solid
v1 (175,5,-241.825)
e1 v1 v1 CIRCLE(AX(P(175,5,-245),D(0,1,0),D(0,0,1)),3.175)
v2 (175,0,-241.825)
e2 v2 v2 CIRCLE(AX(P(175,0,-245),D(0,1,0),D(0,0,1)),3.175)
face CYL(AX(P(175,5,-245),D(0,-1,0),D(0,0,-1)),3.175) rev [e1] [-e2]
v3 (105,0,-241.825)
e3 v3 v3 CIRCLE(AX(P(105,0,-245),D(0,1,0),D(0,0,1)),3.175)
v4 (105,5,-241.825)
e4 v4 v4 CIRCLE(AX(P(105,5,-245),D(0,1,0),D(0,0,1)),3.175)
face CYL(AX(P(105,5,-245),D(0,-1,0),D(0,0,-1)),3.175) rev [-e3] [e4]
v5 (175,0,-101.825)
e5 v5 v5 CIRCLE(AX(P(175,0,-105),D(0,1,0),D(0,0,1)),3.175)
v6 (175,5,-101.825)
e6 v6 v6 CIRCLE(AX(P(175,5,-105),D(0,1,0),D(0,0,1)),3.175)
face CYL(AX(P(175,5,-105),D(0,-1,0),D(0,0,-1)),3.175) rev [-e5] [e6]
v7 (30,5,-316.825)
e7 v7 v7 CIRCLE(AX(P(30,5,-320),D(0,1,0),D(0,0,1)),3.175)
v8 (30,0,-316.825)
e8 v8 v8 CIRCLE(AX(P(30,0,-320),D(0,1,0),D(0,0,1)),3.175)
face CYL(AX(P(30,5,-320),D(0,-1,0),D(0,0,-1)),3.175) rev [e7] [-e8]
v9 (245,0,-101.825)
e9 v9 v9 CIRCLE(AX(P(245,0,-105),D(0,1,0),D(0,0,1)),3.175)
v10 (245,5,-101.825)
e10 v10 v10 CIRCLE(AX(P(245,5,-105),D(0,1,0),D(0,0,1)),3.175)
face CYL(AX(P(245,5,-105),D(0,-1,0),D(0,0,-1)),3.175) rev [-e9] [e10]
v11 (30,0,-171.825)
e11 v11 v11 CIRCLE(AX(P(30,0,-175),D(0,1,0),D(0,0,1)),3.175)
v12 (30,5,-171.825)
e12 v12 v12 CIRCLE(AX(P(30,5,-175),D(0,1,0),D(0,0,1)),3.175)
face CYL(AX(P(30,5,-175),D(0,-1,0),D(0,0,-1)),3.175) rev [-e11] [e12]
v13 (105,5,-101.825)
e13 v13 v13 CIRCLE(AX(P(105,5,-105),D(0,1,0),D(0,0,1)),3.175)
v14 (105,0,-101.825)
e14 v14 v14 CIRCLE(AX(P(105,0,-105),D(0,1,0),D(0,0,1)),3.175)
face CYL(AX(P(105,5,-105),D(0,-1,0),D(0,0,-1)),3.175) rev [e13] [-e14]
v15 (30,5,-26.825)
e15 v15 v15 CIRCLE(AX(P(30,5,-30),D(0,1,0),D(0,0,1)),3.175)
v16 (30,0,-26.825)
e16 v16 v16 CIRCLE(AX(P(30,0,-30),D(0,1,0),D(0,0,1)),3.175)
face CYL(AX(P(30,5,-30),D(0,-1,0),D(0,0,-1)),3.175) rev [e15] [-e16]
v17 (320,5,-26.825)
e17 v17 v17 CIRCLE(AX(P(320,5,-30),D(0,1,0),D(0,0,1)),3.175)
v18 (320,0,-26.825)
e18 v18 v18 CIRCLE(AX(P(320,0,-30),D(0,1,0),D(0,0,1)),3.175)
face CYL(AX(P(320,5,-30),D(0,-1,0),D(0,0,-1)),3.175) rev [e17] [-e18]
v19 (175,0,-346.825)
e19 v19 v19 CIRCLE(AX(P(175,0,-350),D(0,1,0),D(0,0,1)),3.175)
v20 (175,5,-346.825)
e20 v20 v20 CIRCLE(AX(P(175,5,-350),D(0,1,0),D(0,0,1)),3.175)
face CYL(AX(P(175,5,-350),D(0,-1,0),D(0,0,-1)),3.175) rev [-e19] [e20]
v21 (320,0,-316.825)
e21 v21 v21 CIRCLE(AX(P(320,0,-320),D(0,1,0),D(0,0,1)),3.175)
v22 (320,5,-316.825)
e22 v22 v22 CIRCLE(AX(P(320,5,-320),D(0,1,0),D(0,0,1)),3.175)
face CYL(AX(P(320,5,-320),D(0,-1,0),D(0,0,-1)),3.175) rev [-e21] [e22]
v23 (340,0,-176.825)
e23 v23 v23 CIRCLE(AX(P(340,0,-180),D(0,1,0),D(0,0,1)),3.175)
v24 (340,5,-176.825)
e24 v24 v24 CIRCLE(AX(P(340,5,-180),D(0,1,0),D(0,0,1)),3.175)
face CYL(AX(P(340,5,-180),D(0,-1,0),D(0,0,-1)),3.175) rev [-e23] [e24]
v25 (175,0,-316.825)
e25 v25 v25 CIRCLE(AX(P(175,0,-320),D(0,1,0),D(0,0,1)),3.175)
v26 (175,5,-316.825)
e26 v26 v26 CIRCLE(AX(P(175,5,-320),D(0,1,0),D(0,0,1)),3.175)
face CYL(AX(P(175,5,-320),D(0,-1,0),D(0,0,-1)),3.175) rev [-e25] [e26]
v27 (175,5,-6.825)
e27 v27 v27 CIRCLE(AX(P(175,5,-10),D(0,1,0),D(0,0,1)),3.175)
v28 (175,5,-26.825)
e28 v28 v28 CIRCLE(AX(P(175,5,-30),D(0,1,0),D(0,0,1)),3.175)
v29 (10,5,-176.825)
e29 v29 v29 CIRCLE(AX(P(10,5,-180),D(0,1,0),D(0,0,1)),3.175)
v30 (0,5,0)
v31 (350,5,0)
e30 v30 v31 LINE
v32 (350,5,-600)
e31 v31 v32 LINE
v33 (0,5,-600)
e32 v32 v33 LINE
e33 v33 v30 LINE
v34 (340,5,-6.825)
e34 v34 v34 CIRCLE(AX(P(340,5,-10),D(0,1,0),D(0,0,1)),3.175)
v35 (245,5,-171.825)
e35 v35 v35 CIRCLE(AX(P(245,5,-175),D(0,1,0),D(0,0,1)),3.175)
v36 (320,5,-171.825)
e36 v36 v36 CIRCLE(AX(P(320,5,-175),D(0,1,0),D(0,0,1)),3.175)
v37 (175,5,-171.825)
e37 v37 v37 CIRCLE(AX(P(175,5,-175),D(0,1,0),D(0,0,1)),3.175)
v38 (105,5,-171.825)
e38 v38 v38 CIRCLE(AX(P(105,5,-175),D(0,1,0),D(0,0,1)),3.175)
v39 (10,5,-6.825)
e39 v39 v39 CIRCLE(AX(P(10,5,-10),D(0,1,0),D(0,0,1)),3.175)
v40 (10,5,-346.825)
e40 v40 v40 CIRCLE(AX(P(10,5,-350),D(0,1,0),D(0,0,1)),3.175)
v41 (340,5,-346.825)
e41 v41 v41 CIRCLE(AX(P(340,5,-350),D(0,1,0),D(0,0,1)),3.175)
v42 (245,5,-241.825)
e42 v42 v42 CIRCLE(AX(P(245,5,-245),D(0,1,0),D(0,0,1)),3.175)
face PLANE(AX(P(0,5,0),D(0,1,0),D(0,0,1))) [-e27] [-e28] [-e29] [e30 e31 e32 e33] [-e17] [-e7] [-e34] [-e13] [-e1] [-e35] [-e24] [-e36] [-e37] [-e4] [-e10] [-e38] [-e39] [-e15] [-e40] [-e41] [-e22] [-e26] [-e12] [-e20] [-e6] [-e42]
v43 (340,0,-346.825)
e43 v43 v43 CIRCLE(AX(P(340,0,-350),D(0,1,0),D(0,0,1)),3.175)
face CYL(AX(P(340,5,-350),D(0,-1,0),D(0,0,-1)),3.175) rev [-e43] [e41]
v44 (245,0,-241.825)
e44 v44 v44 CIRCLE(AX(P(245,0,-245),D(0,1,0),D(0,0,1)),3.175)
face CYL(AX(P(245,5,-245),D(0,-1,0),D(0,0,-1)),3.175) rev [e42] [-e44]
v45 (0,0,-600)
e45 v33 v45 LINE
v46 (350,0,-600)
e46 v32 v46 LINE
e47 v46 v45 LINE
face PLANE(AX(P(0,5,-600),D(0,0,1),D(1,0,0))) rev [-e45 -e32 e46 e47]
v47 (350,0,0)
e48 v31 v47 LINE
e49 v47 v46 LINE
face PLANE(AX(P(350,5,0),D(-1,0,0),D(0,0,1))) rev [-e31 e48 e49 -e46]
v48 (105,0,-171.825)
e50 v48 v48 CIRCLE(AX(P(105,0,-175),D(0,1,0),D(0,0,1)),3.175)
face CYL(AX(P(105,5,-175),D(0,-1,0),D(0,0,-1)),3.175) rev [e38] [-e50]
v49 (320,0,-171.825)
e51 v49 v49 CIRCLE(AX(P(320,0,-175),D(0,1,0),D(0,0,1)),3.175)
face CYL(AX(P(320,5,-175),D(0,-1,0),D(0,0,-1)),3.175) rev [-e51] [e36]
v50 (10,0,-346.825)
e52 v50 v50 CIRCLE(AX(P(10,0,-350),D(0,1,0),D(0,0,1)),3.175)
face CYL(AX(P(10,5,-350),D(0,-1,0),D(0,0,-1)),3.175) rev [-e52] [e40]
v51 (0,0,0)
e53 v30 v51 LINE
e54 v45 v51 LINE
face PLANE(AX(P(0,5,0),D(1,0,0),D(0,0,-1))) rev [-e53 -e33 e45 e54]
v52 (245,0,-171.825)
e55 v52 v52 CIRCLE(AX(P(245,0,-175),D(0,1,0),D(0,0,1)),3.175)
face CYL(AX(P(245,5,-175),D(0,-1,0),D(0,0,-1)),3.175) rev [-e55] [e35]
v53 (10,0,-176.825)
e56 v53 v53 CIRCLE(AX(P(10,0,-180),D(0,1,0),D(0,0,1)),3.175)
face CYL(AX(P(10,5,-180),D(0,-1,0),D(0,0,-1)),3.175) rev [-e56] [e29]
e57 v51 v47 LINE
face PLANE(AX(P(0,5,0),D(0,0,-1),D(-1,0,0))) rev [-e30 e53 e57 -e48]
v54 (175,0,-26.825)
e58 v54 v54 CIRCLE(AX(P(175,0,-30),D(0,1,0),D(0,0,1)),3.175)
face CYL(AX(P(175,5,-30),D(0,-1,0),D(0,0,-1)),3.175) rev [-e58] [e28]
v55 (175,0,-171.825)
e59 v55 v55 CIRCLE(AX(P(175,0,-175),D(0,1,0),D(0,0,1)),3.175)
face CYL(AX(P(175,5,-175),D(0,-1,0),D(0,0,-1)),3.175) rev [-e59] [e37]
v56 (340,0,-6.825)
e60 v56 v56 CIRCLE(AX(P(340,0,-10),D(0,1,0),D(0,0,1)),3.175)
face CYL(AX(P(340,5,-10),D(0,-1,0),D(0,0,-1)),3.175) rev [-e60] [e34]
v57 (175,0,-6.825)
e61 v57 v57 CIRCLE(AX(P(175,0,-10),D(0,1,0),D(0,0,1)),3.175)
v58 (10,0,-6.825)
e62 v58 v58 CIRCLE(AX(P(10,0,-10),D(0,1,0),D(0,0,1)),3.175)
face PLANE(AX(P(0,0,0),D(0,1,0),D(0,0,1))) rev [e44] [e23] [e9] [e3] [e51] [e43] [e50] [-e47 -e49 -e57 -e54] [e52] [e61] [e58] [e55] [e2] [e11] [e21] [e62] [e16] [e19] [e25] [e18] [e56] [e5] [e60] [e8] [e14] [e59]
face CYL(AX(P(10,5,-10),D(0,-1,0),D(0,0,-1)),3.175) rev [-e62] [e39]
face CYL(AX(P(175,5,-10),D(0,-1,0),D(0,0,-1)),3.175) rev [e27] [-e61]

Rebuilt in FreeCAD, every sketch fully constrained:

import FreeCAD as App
import Part
import Sketcher
from FreeCAD import Vector
Q = App.Units.Quantity

doc = App.newDocument("Part")
params = doc.addObject("Spreadsheet::Sheet", "Params")
for row, (alias, value) in enumerate([
    ("sketch1_diameter", "6.35 mm"),
    ("sketch1_width", "350 mm"),
    ("sketch1_height", "600 mm"),
    ("pad1_length", "5 mm"),
], start=1):
    params.set(f"A{row}", alias)
    params.set(f"B{row}", "=" + value)
    params.setAlias(f"B{row}", alias)

body = doc.addObject("PartDesign::Body", "Body")

# Sketch on XZ plane
sketch1 = body.newObject("Sketcher::SketchObject", "Sketch")
sketch1.AttachmentSupport = (doc.getObject("XZ_Plane"), [""])
sketch1.MapMode = "FlatFace"
sketch1.addGeometry([
    Part.LineSegment(Vector(0, -600, 0), Vector(0, 0, 0)),  # 0
    Part.LineSegment(Vector(0, 0, 0), Vector(350, 0, 0)),  # 1
    Part.LineSegment(Vector(350, 0, 0), Vector(350, -600, 0)),  # 2
    Part.LineSegment(Vector(350, -600, 0), Vector(0, -600, 0)),  # 3
    Part.Circle(Vector(10, -10, 0), Vector(0, 0, 1), 3.175),  # 4
    Part.Circle(Vector(30, -30, 0), Vector(0, 0, 1), 3.175),  # 5
    Part.Circle(Vector(30, -175, 0), Vector(0, 0, 1), 3.175),  # 6
    Part.Circle(Vector(105, -105, 0), Vector(0, 0, 1), 3.175),  # 7
    Part.Circle(Vector(105, -175, 0), Vector(0, 0, 1), 3.175),  # 8
    Part.Circle(Vector(175, -10, 0), Vector(0, 0, 1), 3.175),  # 9
    Part.Circle(Vector(175, -30, 0), Vector(0, 0, 1), 3.175),  # 10
    Part.Circle(Vector(340, -10, 0), Vector(0, 0, 1), 3.175),  # 11
    Part.Circle(Vector(320, -30, 0), Vector(0, 0, 1), 3.175),  # 12
    Part.Circle(Vector(175, -105, 0), Vector(0, 0, 1), 3.175),  # 13
    Part.Circle(Vector(245, -105, 0), Vector(0, 0, 1), 3.175),  # 14
    Part.Circle(Vector(175, -175, 0), Vector(0, 0, 1), 3.175),  # 15
    Part.Circle(Vector(245, -175, 0), Vector(0, 0, 1), 3.175),  # 16
    Part.Circle(Vector(320, -175, 0), Vector(0, 0, 1), 3.175),  # 17
    Part.Circle(Vector(10, -180, 0), Vector(0, 0, 1), 3.175),  # 18
    Part.Circle(Vector(105, -245, 0), Vector(0, 0, 1), 3.175),  # 19
    Part.Circle(Vector(30, -320, 0), Vector(0, 0, 1), 3.175),  # 20
    Part.Circle(Vector(10, -350, 0), Vector(0, 0, 1), 3.175),  # 21
    Part.Circle(Vector(175, -245, 0), Vector(0, 0, 1), 3.175),  # 22
    Part.Circle(Vector(245, -245, 0), Vector(0, 0, 1), 3.175),  # 23
    Part.Circle(Vector(340, -180, 0), Vector(0, 0, 1), 3.175),  # 24
    Part.Circle(Vector(175, -320, 0), Vector(0, 0, 1), 3.175),  # 25
    Part.Circle(Vector(175, -350, 0), Vector(0, 0, 1), 3.175),  # 26
    Part.Circle(Vector(320, -320, 0), Vector(0, 0, 1), 3.175),  # 27
    Part.Circle(Vector(340, -350, 0), Vector(0, 0, 1), 3.175),  # 28
], False)
sketch1.addConstraint([
    Sketcher.Constraint("Coincident", 0, 2, 1, 1),
    Sketcher.Constraint("Coincident", 1, 2, 2, 1),
    Sketcher.Constraint("Coincident", 2, 2, 3, 1),
    Sketcher.Constraint("Coincident", 3, 2, 0, 1),
    Sketcher.Constraint("Vertical", 0),
    Sketcher.Constraint("Horizontal", 1),
    Sketcher.Constraint("Vertical", 2),
    Sketcher.Constraint("Horizontal", 3),
    Sketcher.Constraint("Coincident", 0, 2, -1, 1),
    Sketcher.Constraint("Equal", 4, 5),
    Sketcher.Constraint("Equal", 5, 6),
    Sketcher.Constraint("Equal", 6, 7),
    Sketcher.Constraint("Equal", 7, 8),
    Sketcher.Constraint("Equal", 8, 9),
    Sketcher.Constraint("Equal", 9, 10),
    Sketcher.Constraint("Equal", 10, 11),
    Sketcher.Constraint("Equal", 11, 12),
    Sketcher.Constraint("Equal", 12, 13),
    Sketcher.Constraint("Equal", 13, 14),
    Sketcher.Constraint("Equal", 14, 15),
    Sketcher.Constraint("Equal", 15, 16),
    Sketcher.Constraint("Equal", 16, 17),
    Sketcher.Constraint("Equal", 17, 18),
    Sketcher.Constraint("Equal", 18, 19),
    Sketcher.Constraint("Equal", 19, 20),
    Sketcher.Constraint("Equal", 20, 21),
    Sketcher.Constraint("Equal", 21, 22),
    Sketcher.Constraint("Equal", 22, 23),
    Sketcher.Constraint("Equal", 23, 24),
    Sketcher.Constraint("Equal", 24, 25),
    Sketcher.Constraint("Equal", 25, 26),
    Sketcher.Constraint("Equal", 26, 27),
    Sketcher.Constraint("Equal", 27, 28),
    Sketcher.Constraint("Horizontal", 6, 3, 8, 3),
    Sketcher.Constraint("Horizontal", 4, 3, 9, 3),
    Sketcher.Constraint("Horizontal", 5, 3, 10, 3),
    Sketcher.Constraint("Horizontal", 9, 3, 11, 3),
    Sketcher.Constraint("Horizontal", 10, 3, 12, 3),
    Sketcher.Constraint("Horizontal", 7, 3, 13, 3),
    Sketcher.Constraint("Horizontal", 13, 3, 14, 3),
    Sketcher.Constraint("Horizontal", 8, 3, 15, 3),
    Sketcher.Constraint("Horizontal", 15, 3, 16, 3),
    Sketcher.Constraint("Horizontal", 16, 3, 17, 3),
    Sketcher.Constraint("Horizontal", 19, 3, 22, 3),
    Sketcher.Constraint("Horizontal", 22, 3, 23, 3),
    Sketcher.Constraint("Horizontal", 18, 3, 24, 3),
    Sketcher.Constraint("Horizontal", 20, 3, 25, 3),
    Sketcher.Constraint("Horizontal", 21, 3, 26, 3),
    Sketcher.Constraint("Horizontal", 25, 3, 27, 3),
    Sketcher.Constraint("Horizontal", 26, 3, 28, 3),
    Sketcher.Constraint("Vertical", 5, 3, 6, 3),
    Sketcher.Constraint("Vertical", 7, 3, 8, 3),
    Sketcher.Constraint("Vertical", 9, 3, 10, 3),
    Sketcher.Constraint("Vertical", 10, 3, 13, 3),
    Sketcher.Constraint("Vertical", 13, 3, 15, 3),
    Sketcher.Constraint("Vertical", 14, 3, 16, 3),
    Sketcher.Constraint("Vertical", 12, 3, 17, 3),
    Sketcher.Constraint("Vertical", 4, 3, 18, 3),
    Sketcher.Constraint("Vertical", 8, 3, 19, 3),
    Sketcher.Constraint("Vertical", 6, 3, 20, 3),
    Sketcher.Constraint("Vertical", 18, 3, 21, 3),
    Sketcher.Constraint("Vertical", 15, 3, 22, 3),
    Sketcher.Constraint("Vertical", 16, 3, 23, 3),
    Sketcher.Constraint("Vertical", 11, 3, 24, 3),
    Sketcher.Constraint("Vertical", 22, 3, 25, 3),
    Sketcher.Constraint("Vertical", 25, 3, 26, 3),
    Sketcher.Constraint("Vertical", 17, 3, 27, 3),
    Sketcher.Constraint("Vertical", 24, 3, 28, 3),
    Sketcher.Constraint("Diameter", 4, Q("6.35 mm")),
    Sketcher.Constraint("DistanceX", 1, 1, 1, 2, Q("350 mm")),
    Sketcher.Constraint("DistanceY", 0, 1, 0, 2, Q("600 mm")),
    Sketcher.Constraint("DistanceX", -1, 1, 4, 3, Q("10 mm")),
    Sketcher.Constraint("DistanceY", 4, 3, -1, 1, Q("10 mm")),
    Sketcher.Constraint("DistanceX", -1, 1, 5, 3, Q("30 mm")),
    Sketcher.Constraint("DistanceY", 5, 3, -1, 1, Q("30 mm")),
    Sketcher.Constraint("DistanceY", 6, 3, -1, 1, Q("175 mm")),
    Sketcher.Constraint("DistanceX", -1, 1, 7, 3, Q("105 mm")),
    Sketcher.Constraint("DistanceY", 7, 3, -1, 1, Q("105 mm")),
    Sketcher.Constraint("DistanceX", -1, 1, 9, 3, Q("175 mm")),
    Sketcher.Constraint("DistanceX", -1, 1, 11, 3, Q("340 mm")),
    Sketcher.Constraint("DistanceX", -1, 1, 12, 3, Q("320 mm")),
    Sketcher.Constraint("DistanceX", -1, 1, 14, 3, Q("245 mm")),
    Sketcher.Constraint("DistanceY", 18, 3, -1, 1, Q("180 mm")),
    Sketcher.Constraint("DistanceY", 19, 3, -1, 1, Q("245 mm")),
    Sketcher.Constraint("DistanceY", 20, 3, -1, 1, Q("320 mm")),
    Sketcher.Constraint("DistanceY", 21, 3, -1, 1, Q("350 mm")),
])
sketch1.setExpression("Constraints[68]", "Params.sketch1_diameter")
sketch1.setExpression("Constraints[69]", "Params.sketch1_width")
sketch1.setExpression("Constraints[70]", "Params.sketch1_height")
pad1 = body.newObject("PartDesign::Pad", "Pad")
pad1.Profile = sketch1
pad1.setExpression("Length", "Params.pad1_length")
pad1.Reversed = True

doc.recompute()
